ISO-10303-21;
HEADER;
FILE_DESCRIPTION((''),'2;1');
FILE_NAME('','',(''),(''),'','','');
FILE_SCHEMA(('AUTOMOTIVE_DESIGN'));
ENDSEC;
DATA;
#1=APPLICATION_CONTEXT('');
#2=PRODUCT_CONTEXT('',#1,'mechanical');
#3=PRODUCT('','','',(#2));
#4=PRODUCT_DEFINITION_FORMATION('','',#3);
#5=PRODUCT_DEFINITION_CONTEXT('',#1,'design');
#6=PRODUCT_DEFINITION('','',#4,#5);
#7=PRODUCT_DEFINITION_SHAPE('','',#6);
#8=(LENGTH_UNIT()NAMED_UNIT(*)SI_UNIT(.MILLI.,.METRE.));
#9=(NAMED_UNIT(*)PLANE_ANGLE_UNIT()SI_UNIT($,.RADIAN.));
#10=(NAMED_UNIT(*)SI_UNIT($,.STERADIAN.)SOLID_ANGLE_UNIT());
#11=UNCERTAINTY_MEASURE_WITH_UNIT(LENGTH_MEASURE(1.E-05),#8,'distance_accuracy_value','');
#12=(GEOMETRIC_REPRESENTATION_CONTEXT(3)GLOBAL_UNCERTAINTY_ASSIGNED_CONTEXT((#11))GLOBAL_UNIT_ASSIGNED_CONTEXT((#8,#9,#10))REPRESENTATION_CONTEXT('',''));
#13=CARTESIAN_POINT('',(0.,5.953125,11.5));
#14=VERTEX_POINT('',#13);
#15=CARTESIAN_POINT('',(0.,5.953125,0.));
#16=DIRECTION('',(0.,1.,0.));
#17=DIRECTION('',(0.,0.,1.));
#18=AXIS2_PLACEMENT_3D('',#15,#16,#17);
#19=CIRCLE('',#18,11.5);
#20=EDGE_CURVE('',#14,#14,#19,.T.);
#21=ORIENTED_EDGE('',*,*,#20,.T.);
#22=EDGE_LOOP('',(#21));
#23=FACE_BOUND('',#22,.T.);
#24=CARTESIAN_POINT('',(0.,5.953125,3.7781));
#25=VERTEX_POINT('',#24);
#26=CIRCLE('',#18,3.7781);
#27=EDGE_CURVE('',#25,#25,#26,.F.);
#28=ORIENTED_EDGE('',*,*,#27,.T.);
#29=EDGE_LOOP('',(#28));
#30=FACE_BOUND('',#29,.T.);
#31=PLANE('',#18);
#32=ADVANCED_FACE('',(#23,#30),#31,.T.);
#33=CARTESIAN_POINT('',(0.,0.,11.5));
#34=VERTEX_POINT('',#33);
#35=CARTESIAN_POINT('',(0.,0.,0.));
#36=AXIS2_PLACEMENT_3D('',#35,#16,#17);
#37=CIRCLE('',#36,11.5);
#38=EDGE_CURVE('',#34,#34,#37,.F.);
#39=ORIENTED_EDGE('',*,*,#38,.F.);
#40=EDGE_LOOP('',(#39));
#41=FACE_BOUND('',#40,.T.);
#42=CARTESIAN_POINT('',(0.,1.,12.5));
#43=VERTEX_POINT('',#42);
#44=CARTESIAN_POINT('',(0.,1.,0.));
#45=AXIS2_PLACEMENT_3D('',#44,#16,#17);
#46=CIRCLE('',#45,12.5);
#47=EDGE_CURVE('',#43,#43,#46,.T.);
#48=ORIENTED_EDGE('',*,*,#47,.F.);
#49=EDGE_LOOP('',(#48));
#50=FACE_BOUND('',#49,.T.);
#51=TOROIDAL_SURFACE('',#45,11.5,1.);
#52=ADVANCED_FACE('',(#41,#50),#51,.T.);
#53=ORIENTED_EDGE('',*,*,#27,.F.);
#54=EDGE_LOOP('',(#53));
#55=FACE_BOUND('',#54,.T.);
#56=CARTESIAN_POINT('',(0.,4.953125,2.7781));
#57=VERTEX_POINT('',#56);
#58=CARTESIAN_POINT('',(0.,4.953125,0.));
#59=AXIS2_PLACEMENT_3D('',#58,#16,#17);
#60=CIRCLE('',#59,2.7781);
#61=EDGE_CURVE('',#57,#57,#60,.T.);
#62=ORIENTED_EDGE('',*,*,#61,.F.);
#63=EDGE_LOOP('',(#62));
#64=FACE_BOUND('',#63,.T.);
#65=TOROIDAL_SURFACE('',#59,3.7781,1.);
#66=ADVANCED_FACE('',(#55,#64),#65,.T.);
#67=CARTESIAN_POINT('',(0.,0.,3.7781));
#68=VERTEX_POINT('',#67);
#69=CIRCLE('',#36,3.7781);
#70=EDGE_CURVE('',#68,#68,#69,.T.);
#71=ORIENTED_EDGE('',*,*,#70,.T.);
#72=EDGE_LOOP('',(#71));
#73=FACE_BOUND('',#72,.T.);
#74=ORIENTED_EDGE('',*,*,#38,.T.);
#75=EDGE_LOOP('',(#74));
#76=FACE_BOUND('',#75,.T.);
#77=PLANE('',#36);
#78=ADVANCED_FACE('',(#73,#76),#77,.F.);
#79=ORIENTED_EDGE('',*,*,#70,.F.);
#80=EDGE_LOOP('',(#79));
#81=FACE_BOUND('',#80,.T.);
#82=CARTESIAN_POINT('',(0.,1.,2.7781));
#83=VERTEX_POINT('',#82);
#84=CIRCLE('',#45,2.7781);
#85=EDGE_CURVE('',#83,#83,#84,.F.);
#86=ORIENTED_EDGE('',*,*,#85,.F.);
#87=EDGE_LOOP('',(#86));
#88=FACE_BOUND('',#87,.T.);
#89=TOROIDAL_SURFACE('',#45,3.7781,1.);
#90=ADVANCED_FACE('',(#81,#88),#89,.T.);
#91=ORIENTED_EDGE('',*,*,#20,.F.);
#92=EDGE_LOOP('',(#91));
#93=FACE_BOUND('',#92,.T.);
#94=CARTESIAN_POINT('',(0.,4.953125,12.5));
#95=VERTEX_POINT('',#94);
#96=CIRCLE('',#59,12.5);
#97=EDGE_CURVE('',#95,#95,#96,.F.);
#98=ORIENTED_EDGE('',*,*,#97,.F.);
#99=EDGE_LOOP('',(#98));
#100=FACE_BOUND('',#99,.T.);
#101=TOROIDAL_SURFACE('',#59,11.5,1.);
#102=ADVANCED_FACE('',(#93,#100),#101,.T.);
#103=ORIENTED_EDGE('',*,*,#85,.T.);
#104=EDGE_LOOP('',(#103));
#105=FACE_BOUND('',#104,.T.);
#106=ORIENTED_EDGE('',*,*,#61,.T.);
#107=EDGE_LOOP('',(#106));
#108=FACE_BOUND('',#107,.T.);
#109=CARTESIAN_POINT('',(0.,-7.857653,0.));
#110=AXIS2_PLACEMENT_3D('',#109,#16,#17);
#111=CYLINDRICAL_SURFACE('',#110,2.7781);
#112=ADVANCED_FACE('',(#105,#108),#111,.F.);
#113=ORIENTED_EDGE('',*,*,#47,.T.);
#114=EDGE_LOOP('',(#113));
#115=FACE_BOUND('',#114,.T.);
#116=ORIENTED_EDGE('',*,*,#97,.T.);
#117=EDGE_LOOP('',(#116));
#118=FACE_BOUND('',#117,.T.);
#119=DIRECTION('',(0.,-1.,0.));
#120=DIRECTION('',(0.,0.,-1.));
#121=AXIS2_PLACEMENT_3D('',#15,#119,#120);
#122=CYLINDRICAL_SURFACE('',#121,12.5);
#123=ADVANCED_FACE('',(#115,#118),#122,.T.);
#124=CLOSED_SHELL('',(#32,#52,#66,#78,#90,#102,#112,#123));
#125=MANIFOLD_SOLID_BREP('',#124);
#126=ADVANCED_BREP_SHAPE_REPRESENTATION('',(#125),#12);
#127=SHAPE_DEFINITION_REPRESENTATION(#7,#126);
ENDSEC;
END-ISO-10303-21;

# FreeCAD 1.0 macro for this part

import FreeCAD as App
import Part
import Sketcher
from FreeCAD import Vector


def edges_at(feature, points):
    """Names of the edges that pass closest to the given points."""
    edges = feature.Shape.Edges
    near = lambda p: min(range(len(edges)), key=lambda i: edges[i].distToShape(Part.Vertex(*p))[0])
    return sorted({f"Edge{near(p) + 1}" for p in points})

doc = App.newDocument("Part")
body = doc.addObject("PartDesign::Body", "Body")

# Sketch on XZ plane
sketch1 = doc.addObject("Sketcher::SketchObject", "Sketch")
body.addObject(sketch1)
sketch1.AttachmentSupport = (doc.XZ_Plane, [""])
sketch1.MapMode = "FlatFace"
sketch1.addGeometry(Part.Circle(Vector(0, 0, 0), Vector(0, 0, 1), 12), False)
sketch1.addConstraint([
    Sketcher.Constraint("Coincident", 0, 3, -1, 1),
    Sketcher.Constraint("Diameter", 0, 25.0),
])
pad1 = doc.addObject("PartDesign::Pad", "Pad")
body.addObject(pad1)
pad1.Profile = sketch1
pad1.Length = 5.953125
pad1.Reversed = True

# Sketch on XZ plane
sketch2 = doc.addObject("Sketcher::SketchObject", "Sketch001")
body.addObject(sketch2)
sketch2.AttachmentSupport = (doc.XZ_Plane, [""])
sketch2.MapMode = "FlatFace"
sketch2.AttachmentOffset = App.Placement(Vector(0, 0, -5.953125), App.Rotation())
sketch2.addGeometry(Part.Circle(Vector(0, 0, 0), Vector(0, 0, 1), 2.8), False)
sketch2.addConstraint([
    Sketcher.Constraint("Coincident", 0, 3, -1, 1),
    Sketcher.Constraint("Diameter", 0, 5.5562),
])
pocket1 = doc.addObject("PartDesign::Pocket", "Pocket")
body.addObject(pocket1)
pocket1.Profile = sketch2
pocket1.Length = 5.953125
pocket1.Reversed = True
doc.recompute()

fillet = doc.addObject("PartDesign::Fillet", "Fillet")
body.addObject(fillet)
fillet.Base = (pocket1, edges_at(pocket1, [
    (-12.5, 0, 0),
    (-12.5, 5.953, 0),
    (-2.778, 5.953, 0),
    (-2.778, 0, 0),
]))
fillet.Radius = 1

doc.recompute()
